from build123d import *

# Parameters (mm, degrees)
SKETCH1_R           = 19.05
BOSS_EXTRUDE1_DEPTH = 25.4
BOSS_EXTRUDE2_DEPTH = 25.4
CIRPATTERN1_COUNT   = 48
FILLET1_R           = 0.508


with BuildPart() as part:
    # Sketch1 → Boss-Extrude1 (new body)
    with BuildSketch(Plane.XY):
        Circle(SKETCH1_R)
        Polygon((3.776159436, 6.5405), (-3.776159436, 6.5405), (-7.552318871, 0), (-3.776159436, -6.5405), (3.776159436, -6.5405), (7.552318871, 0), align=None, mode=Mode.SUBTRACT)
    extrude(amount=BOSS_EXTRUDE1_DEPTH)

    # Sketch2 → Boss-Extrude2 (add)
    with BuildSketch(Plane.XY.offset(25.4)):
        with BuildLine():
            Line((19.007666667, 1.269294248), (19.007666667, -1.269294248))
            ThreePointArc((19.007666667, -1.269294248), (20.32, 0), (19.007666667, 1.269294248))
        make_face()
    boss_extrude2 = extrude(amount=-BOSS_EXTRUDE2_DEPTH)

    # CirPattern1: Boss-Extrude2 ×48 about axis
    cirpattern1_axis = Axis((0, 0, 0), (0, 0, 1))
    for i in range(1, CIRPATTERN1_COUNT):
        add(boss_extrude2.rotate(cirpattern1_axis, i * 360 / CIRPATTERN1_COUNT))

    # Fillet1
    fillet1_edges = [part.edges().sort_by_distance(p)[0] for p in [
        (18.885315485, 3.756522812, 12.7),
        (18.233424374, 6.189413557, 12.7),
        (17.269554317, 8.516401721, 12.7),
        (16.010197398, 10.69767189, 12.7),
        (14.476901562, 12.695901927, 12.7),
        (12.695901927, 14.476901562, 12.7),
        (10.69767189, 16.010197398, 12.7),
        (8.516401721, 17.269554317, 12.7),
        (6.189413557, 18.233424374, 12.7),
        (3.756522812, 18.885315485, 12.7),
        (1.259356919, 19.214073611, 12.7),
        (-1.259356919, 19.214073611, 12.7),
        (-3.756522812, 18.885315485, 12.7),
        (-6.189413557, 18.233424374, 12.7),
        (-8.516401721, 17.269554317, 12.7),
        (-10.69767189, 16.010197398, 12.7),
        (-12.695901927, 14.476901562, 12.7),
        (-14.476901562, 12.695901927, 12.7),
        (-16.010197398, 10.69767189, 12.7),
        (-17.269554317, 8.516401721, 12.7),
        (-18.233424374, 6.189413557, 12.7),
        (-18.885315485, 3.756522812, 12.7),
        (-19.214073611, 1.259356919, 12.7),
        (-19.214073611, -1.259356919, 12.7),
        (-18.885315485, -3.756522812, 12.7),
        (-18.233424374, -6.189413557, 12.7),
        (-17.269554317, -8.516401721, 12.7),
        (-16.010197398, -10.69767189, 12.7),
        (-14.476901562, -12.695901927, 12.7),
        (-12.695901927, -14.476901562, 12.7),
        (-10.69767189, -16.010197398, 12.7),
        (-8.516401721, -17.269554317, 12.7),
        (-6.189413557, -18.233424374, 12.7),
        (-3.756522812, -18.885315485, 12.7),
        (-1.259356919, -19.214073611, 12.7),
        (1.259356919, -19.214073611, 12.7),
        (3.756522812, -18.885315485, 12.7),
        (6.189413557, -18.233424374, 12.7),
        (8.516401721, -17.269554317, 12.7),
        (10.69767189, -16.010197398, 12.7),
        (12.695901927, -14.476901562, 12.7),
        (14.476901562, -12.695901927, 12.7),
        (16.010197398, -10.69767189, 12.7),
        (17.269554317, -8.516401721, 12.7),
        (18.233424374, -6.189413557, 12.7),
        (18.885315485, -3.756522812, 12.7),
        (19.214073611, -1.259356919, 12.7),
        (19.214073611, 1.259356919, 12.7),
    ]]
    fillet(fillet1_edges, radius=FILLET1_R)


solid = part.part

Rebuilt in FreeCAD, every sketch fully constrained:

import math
import FreeCAD as App
import Part
import Sketcher
from FreeCAD import Vector
Q = App.Units.Quantity


def edges_at(feature, points):
    """Names of the edges that pass closest to the given points."""
    edges = feature.Shape.Edges
    near = lambda p: min(range(len(edges)), key=lambda i: edges[i].distToShape(Part.Vertex(*p))[0])
    return sorted({f"Edge{near(p) + 1}" for p in points})


def add_polygon(sketch, points):
    """Adds a closed chain of lines whose ends are joined by coincident constraints."""
    first, n = sketch.GeometryCount, len(points)
    for a, b in zip(points, points[1:] + points[:1]):
        sketch.addGeometry(Part.LineSegment(App.Vector(*a, 0), App.Vector(*b, 0)), False)
    for i in range(n):
        sketch.addConstraint(Sketcher.Constraint("Coincident", first + i, 2, first + (i + 1) % n, 1))

doc = App.newDocument("Part")
params = doc.addObject("Spreadsheet::Sheet", "Params")
for row, (alias, value) in enumerate([
    ("sketch1_diameter", "1.5 in"),
    ("pad1_length", "1 in"),
    ("sketch2_radius", "0.05 in"),
    ("pad2_length", "1 in"),
    ("fillet_radius", "0.02 in"),
], start=1):
    params.set(f"A{row}", alias)
    params.set(f"B{row}", "=" + value)
    params.setAlias(f"B{row}", alias)

body = doc.addObject("PartDesign::Body", "Body")

# Sketch on XY plane
sketch1 = body.newObject("Sketcher::SketchObject", "Sketch")
sketch1.AttachmentSupport = (doc.getObject("XY_Plane"), [""])
sketch1.MapMode = "FlatFace"
sketch1.addGeometry(Part.Circle(Vector(0, 0, 0), Vector(0, 0, 1), 19.05), False)  # 0
add_polygon(sketch1, [(-3.776159, 6.5405), (3.776159, 6.5405), (7.552319, 0), (3.776159, -6.5405), (-3.776159, -6.5405), (-7.552319, 0)])  # lines 1-6
sketch1.addConstraint([
    Sketcher.Constraint("Horizontal", 1),
    Sketcher.Constraint("Horizontal", 4),
    Sketcher.Constraint("Coincident", 0, 3, -1, 1),
    Sketcher.Constraint("Symmetric", 1, 2, 4, 2, -1, 1),
    Sketcher.Constraint("Symmetric", 2, 2, 5, 2, -1, 1),
    Sketcher.Constraint("PointOnObject", 2, 2, -1),
    Sketcher.Constraint("Parallel", 3, 6),
    Sketcher.Constraint("Vertical", 1, 2, 3, 2),
    Sketcher.Constraint("Diameter", 0, Q("1.5 in")),
    Sketcher.Constraint("Angle", 2, Q("-60 deg")),
    Sketcher.Constraint("DistanceY", 3, 2, 1, 2, Q("0.515 in")),
    Sketcher.Constraint("DistanceX", 1, 1, 1, 2, Q("7.552319 mm")),
])
sketch1.setExpression("Constraints[14]", "Params.sketch1_diameter")
pad1 = body.newObject("PartDesign::Pad", "Pad")
pad1.Profile = sketch1
pad1.setExpression("Length", "Params.pad1_length")

# Sketch on XY plane
sketch2 = body.newObject("Sketcher::SketchObject", "Sketch001")
sketch2.AttachmentSupport = (doc.getObject("XY_Plane"), [""])
sketch2.MapMode = "FlatFace"
sketch2.AttachmentOffset = App.Placement(Vector(0, 0, 1 * 25.4), App.Rotation())
sketch2.addGeometry([
    Part.LineSegment(Vector(19.007667, 1.269294, 0), Vector(19.007667, -1.269294, 0)),
    Part.ArcOfCircle(Part.Circle(Vector(19.05, 0, 0), Vector(0, 0, 1), 1.27), math.radians(-91.910213), math.radians(91.910213)),
], False)
sketch2.addConstraint([
    Sketcher.Constraint("Coincident", 0, 1, 1, 2),
    Sketcher.Constraint("Coincident", 1, 1, 0, 2),
    Sketcher.Constraint("Vertical", 0),
    Sketcher.Constraint("PointOnObject", 1, 3, -1),
    Sketcher.Constraint("Radius", 1, Q("0.05 in")),
    Sketcher.Constraint("DistanceX", -1, 1, 1, 3, Q("0.75 in")),
    Sketcher.Constraint("DistanceY", 0, 2, 0, 1, Q("2.538588 mm")),
])
sketch2.setExpression("Constraints[4]", "Params.sketch2_radius")
pad2 = body.newObject("PartDesign::Pad", "Pad001")
pad2.Profile = sketch2
pad2.setExpression("Length", "Params.pad2_length")
pad2.Reversed = True
doc.recompute()

polarpattern = body.newObject("PartDesign::PolarPattern", "PolarPattern")
polarpattern.Originals = [pad2]
polarpattern.Axis = (doc.getObject("Z_Axis"), [""])
polarpattern.Angle = 360
polarpattern.Occurrences = 48
body.Tip = polarpattern
doc.recompute()

fillet = body.newObject("PartDesign::Fillet", "Fillet")
fillet.Base = (polarpattern, edges_at(polarpattern, [
    (18.885, 3.757, 12.7),
    (18.233, 6.189, 12.7),
    (17.27, 8.516, 12.7),
    (16.01, 10.698, 12.7),
    (14.477, 12.696, 12.7),
    (12.696, 14.477, 12.7),
    (10.698, 16.01, 12.7),
    (8.516, 17.27, 12.7),
    (6.189, 18.233, 12.7),
    (3.757, 18.885, 12.7),
    (1.259, 19.214, 12.7),
    (-1.259, 19.214, 12.7),
    (-3.757, 18.885, 12.7),
    (-6.189, 18.233, 12.7),
    (-8.516, 17.27, 12.7),
    (-10.698, 16.01, 12.7),
    (-12.696, 14.477, 12.7),
    (-14.477, 12.696, 12.7),
    (-16.01, 10.698, 12.7),
    (-17.27, 8.516, 12.7),
    (-18.233, 6.189, 12.7),
    (-18.885, 3.757, 12.7),
    (-19.214, 1.259, 12.7),
    (-19.214, -1.259, 12.7),
    (-18.885, -3.757, 12.7),
    (-18.233, -6.189, 12.7),
    (-17.27, -8.516, 12.7),
    (-16.01, -10.698, 12.7),
    (-14.477, -12.696, 12.7),
    (-12.696, -14.477, 12.7),
    (-10.698, -16.01, 12.7),
    (-8.516, -17.27, 12.7),
    (-6.189, -18.233, 12.7),
    (-3.757, -18.885, 12.7),
    (-1.259, -19.214, 12.7),
    (1.259, -19.214, 12.7),
    (3.757, -18.885, 12.7),
    (6.189, -18.233, 12.7),
    (8.516, -17.27, 12.7),
    (10.698, -16.01, 12.7),
    (12.696, -14.477, 12.7),
    (14.477, -12.696, 12.7),
    (16.01, -10.698, 12.7),
    (17.27, -8.516, 12.7),
    (18.233, -6.189, 12.7),
    (18.885, -3.757, 12.7),
    (19.214, -1.259, 12.7),
    (19.214, 1.259, 12.7),
]))
fillet.setExpression("Radius", "Params.fillet_radius")

doc.recompute()
